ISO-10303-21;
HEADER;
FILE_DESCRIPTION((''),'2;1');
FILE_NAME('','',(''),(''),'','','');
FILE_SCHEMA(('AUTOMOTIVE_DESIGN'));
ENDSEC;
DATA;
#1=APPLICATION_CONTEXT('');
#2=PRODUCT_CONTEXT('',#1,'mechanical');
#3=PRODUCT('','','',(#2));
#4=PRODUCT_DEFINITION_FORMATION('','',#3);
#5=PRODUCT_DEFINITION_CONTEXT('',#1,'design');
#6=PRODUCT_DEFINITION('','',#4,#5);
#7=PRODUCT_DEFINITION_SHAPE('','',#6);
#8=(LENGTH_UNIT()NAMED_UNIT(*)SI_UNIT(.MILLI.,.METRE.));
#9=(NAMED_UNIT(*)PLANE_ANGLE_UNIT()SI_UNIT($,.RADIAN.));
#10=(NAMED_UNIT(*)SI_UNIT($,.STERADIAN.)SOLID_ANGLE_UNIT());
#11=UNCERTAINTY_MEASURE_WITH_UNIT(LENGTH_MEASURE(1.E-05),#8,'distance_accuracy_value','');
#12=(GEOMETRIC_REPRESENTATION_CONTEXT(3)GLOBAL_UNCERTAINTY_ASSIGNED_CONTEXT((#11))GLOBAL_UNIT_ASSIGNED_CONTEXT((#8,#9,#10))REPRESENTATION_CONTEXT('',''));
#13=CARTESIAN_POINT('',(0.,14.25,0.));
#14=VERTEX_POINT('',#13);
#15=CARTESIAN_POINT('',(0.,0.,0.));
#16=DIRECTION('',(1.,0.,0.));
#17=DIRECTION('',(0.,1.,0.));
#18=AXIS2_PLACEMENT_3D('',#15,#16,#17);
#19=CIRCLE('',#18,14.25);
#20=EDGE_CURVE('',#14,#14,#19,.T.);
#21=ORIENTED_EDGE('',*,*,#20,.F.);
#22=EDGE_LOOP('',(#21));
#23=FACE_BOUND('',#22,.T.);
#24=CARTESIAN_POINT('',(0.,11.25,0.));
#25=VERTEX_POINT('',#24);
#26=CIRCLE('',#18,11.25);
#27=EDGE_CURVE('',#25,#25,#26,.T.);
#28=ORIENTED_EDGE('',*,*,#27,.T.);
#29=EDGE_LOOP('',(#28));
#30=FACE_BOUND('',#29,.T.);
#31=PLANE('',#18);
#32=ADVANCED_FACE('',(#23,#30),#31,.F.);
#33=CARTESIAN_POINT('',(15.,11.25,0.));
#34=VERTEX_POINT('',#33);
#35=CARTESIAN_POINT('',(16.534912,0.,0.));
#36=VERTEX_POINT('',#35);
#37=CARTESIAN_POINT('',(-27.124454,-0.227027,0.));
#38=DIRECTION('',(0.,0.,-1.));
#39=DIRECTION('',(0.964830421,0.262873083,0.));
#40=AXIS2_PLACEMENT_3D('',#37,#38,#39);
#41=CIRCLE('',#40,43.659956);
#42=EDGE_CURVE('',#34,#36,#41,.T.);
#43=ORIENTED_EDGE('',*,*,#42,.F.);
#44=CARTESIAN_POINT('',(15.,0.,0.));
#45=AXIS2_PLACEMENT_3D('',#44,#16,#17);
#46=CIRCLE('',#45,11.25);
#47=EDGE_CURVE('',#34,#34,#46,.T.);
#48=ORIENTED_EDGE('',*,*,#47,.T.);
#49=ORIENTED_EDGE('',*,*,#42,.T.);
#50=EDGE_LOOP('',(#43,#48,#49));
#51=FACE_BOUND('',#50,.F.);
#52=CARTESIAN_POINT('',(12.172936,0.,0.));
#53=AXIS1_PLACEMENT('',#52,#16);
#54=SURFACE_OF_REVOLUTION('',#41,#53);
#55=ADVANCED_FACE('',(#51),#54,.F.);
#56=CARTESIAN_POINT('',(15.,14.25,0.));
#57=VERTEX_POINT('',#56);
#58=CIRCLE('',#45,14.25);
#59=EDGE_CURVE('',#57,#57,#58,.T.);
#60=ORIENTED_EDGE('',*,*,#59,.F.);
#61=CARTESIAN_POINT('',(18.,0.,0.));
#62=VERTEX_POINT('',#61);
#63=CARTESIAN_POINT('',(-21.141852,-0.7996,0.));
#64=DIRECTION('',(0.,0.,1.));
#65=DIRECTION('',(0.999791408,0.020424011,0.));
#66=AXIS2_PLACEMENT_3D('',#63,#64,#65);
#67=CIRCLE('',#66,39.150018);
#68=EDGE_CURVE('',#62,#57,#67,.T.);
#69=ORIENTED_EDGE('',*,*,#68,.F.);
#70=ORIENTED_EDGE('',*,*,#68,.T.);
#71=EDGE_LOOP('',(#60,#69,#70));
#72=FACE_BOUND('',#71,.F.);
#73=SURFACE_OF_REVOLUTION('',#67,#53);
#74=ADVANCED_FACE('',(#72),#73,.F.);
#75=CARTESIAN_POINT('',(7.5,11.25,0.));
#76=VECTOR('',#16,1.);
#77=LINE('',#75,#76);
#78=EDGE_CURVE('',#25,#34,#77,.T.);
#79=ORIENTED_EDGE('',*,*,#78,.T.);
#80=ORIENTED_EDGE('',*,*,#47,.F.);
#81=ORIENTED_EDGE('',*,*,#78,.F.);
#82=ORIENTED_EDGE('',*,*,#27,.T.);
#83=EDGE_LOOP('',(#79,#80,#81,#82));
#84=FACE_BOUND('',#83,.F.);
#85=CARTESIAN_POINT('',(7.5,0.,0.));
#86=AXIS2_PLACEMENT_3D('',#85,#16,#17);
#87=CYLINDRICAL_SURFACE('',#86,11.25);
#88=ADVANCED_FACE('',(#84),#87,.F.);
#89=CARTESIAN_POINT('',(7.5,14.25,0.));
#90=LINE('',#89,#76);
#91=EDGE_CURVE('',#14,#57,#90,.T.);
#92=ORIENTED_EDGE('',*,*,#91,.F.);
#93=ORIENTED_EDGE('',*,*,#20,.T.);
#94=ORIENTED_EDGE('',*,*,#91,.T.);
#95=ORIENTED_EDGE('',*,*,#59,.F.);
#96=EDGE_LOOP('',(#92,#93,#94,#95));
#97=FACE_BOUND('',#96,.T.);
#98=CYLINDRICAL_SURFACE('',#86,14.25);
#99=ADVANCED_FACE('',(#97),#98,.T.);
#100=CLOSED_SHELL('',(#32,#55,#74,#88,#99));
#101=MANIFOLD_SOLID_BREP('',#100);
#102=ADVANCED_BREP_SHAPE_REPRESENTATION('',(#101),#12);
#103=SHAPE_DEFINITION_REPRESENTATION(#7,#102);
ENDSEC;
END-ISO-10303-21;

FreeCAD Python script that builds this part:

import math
import FreeCAD as App
import Part
import Sketcher
from FreeCAD import Vector
Q = App.Units.Quantity

doc = App.newDocument("Part")
body = doc.addObject("PartDesign::Body", "Body")

sketch1 = body.newObject("Sketcher::SketchObject", "Sketch")
sketch1.AttachmentSupport = (doc.getObject("XY_Plane"), [""])
sketch1.MapMode = "FlatFace"
sketch1.addGeometry([
    Part.LineSegment(Vector(0, 14.25, 0), Vector(0, 11.25, 0)),
    Part.LineSegment(Vector(0, 11.25, 0), Vector(15, 11.25, 0)),
    Part.ArcOfCircle(Part.Circle(Vector(-27.124454, -0.227027, 0), Vector(0, 0, 1), 43.659956), math.radians(0.297934), math.radians(15.240609)),
    Part.LineSegment(Vector(16.534912, 0, 0), Vector(18, 0, 0)),
    Part.ArcOfCircle(Part.Circle(Vector(-21.141852, -0.7996, 0), Vector(0, 0, 1), 39.150018), math.radians(1.170291), math.radians(22.607025)),
    Part.LineSegment(Vector(15, 14.25, 0), Vector(0, 14.25, 0)),
], False)
sketch1.addConstraint([
    Sketcher.Constraint("Coincident", 0, 2, 1, 1),
    Sketcher.Constraint("Coincident", 1, 2, 2, 2),
    Sketcher.Constraint("Coincident", 2, 1, 3, 1),
    Sketcher.Constraint("Coincident", 3, 2, 4, 1),
    Sketcher.Constraint("Coincident", 4, 2, 5, 1),
    Sketcher.Constraint("Coincident", 5, 2, 0, 1),
    Sketcher.Constraint("Vertical", 0),
    Sketcher.Constraint("Horizontal", 1),
    Sketcher.Constraint("Horizontal", 3),
    Sketcher.Constraint("Horizontal", 5),
    Sketcher.Constraint("PointOnObject", 0, 2, -2),
    Sketcher.Constraint("PointOnObject", 2, 1, -1),
    Sketcher.Constraint("Vertical", 1, 2, 4, 2),
    Sketcher.Constraint("DistanceX", 1, 1, 1, 2, Q("15 mm")),
    Sketcher.Constraint("DistanceY", 0, 2, 0, 1, Q("3 mm")),
    Sketcher.Constraint("DistanceX", -1, 1, 3, 2, Q("18 mm")),
    Sketcher.Constraint("DistanceY", -1, 1, 0, 2, Q("11.25 mm")),
    Sketcher.Constraint("Radius", 4, Q("39.150018 mm")),
    Sketcher.Constraint("Radius", 2, Q("43.659956 mm")),
    Sketcher.Constraint("DistanceX", 3, 1, 3, 2, Q("1.465088 mm")),
])
revolution = body.newObject("PartDesign::Revolution", "Revolution")
revolution.Profile = sketch1
revolution.ReferenceAxis = (sketch1, ["H_Axis"])
revolution.Angle = 360

doc.recompute()
